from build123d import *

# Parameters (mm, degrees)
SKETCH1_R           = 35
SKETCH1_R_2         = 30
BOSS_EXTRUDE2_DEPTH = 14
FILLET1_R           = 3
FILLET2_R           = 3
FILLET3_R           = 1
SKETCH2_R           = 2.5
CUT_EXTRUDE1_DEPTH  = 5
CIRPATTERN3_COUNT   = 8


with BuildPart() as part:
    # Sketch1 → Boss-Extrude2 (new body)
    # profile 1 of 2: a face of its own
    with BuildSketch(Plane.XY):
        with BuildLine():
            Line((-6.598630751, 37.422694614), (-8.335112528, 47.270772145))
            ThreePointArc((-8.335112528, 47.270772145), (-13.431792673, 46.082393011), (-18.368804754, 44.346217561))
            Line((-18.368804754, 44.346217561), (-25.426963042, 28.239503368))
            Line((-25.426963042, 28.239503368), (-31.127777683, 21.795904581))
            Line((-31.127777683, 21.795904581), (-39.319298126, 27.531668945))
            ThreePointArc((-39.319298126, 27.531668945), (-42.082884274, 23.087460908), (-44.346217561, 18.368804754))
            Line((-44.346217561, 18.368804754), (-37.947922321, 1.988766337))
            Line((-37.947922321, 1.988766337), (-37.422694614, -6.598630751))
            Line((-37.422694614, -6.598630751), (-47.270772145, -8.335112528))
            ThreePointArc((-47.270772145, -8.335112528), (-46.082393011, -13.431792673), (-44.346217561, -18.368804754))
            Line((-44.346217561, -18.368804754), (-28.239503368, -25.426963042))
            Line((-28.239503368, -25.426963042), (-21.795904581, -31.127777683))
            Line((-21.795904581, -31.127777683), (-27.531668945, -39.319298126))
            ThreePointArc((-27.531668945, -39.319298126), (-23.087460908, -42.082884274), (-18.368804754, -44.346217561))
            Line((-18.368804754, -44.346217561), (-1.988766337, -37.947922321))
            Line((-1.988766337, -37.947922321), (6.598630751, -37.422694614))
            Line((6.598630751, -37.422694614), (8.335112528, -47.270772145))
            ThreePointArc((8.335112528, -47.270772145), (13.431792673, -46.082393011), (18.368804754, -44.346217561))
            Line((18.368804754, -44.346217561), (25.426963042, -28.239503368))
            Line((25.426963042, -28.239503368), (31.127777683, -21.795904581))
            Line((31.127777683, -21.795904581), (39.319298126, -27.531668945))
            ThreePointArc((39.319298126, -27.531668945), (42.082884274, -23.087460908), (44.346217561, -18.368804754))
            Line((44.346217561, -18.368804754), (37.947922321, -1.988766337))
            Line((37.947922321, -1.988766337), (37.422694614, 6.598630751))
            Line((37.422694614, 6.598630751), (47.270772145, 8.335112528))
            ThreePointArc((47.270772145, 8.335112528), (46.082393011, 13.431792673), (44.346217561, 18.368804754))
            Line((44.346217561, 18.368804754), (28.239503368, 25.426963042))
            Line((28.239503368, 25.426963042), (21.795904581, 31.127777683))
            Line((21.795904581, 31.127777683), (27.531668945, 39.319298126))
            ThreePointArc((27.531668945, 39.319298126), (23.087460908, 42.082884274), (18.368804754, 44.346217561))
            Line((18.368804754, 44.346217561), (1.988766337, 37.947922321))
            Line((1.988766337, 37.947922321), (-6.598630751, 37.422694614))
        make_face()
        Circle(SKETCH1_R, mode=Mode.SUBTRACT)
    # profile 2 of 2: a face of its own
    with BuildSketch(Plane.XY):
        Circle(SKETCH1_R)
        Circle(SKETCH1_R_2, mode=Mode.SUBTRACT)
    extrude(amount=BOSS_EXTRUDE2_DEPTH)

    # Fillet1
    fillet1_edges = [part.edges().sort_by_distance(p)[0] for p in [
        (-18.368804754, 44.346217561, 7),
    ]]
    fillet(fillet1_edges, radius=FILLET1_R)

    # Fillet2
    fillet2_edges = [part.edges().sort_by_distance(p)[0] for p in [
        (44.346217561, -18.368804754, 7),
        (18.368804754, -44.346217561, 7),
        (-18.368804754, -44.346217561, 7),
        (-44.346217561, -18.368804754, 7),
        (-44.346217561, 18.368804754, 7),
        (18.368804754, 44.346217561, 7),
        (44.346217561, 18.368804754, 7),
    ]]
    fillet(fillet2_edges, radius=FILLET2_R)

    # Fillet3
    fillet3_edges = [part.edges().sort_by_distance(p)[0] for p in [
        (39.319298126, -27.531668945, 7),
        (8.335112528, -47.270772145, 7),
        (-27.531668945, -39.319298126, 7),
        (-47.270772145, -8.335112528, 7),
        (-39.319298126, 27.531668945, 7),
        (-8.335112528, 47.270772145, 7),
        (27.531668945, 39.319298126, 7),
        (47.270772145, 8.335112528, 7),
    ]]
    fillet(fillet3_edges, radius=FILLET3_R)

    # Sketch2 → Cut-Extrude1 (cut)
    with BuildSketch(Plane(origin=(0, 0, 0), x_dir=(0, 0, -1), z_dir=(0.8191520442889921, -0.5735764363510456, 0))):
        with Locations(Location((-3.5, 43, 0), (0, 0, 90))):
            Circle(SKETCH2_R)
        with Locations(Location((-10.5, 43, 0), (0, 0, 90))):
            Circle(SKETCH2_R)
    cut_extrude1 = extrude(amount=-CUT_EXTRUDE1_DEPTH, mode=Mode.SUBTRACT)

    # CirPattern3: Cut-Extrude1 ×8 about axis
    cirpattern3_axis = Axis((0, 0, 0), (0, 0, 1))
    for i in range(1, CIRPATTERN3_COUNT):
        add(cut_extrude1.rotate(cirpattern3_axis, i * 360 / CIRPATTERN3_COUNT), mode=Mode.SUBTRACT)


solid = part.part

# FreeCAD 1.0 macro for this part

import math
import FreeCAD as App
import Part
import Sketcher

V = App.Vector
Q = App.Units.Quantity


def edges_at(feature, points):
    """Names of the edges that pass closest to the given points."""
    edges = feature.Shape.Edges
    near = lambda p: min(range(len(edges)), key=lambda i: edges[i].distToShape(Part.Vertex(*p))[0])
    return sorted({f"Edge{near(p) + 1}" for p in points})

doc = App.newDocument("Part")
body = doc.addObject("PartDesign::Body", "Body")

sketch1 = body.newObject("Sketcher::SketchObject", "Sketch")
sketch1.AttachmentSupport = (doc.getObject("XY_Plane"), [""])
sketch1.MapMode = "FlatFace"
sketch1.addGeometry(Part.LineSegment(V(-6.598631, 37.422695, 0), V(-8.335113, 47.270772, 0)), False)
sketch1.addGeometry(Part.ArcOfCircle(Part.Circle(V(0, 0, 0), V(0, 0, 1), 48), math.radians(100), math.radians(112.5)), False)
sketch1.addGeometry(Part.LineSegment(V(-18.368805, 44.346218, 0), V(-25.426963, 28.239503, 0)), False)
sketch1.addGeometry(Part.LineSegment(V(-25.426963, 28.239503, 0), V(-31.127778, 21.795905, 0)), False)
sketch1.addGeometry(Part.LineSegment(V(-31.127778, 21.795905, 0), V(-39.319298, 27.531669, 0)), False)
sketch1.addGeometry(Part.ArcOfCircle(Part.Circle(V(0, 0, 0), V(0, 0, 1), 48), math.radians(145), math.radians(157.5)), False)
sketch1.addGeometry(Part.LineSegment(V(-44.346218, 18.368805, 0), V(-37.947922, 1.988766, 0)), False)
sketch1.addGeometry(Part.LineSegment(V(-37.947922, 1.988766, 0), V(-37.422695, -6.598631, 0)), False)
sketch1.addGeometry(Part.LineSegment(V(-37.422695, -6.598631, 0), V(-47.270772, -8.335113, 0)), False)
sketch1.addGeometry(Part.ArcOfCircle(Part.Circle(V(0, 0, 0), V(0, 0, 1), 48), math.radians(-170), math.radians(-157.5)), False)
sketch1.addGeometry(Part.LineSegment(V(-44.346218, -18.368805, 0), V(-28.239503, -25.426963, 0)), False)
sketch1.addGeometry(Part.LineSegment(V(-28.239503, -25.426963, 0), V(-21.795905, -31.127778, 0)), False)
sketch1.addGeometry(Part.LineSegment(V(-21.795905, -31.127778, 0), V(-27.531669, -39.319298, 0)), False)
sketch1.addGeometry(Part.ArcOfCircle(Part.Circle(V(0, 0, 0), V(0, 0, 1), 48), math.radians(-125), math.radians(-112.5)), False)
sketch1.addGeometry(Part.LineSegment(V(-18.368805, -44.346218, 0), V(-1.988766, -37.947922, 0)), False)
sketch1.addGeometry(Part.LineSegment(V(-1.988766, -37.947922, 0), V(6.598631, -37.422695, 0)), False)
sketch1.addGeometry(Part.LineSegment(V(6.598631, -37.422695, 0), V(8.335113, -47.270772, 0)), False)
sketch1.addGeometry(Part.ArcOfCircle(Part.Circle(V(0, 0, 0), V(0, 0, 1), 48), math.radians(-80), math.radians(-67.5)), False)
sketch1.addGeometry(Part.LineSegment(V(18.368805, -44.346218, 0), V(25.426963, -28.239503, 0)), False)
sketch1.addGeometry(Part.LineSegment(V(25.426963, -28.239503, 0), V(31.127778, -21.795905, 0)), False)
sketch1.addGeometry(Part.LineSegment(V(31.127778, -21.795905, 0), V(39.319298, -27.531669, 0)), False)
sketch1.addGeometry(Part.ArcOfCircle(Part.Circle(V(0, 0, 0), V(0, 0, 1), 48), math.radians(-35), math.radians(-22.5)), False)
sketch1.addGeometry(Part.LineSegment(V(44.346218, -18.368805, 0), V(37.947922, -1.988766, 0)), False)
sketch1.addGeometry(Part.LineSegment(V(37.947922, -1.988766, 0), V(37.422695, 6.598631, 0)), False)
sketch1.addGeometry(Part.LineSegment(V(37.422695, 6.598631, 0), V(47.270772, 8.335113, 0)), False)
sketch1.addGeometry(Part.ArcOfCircle(Part.Circle(V(0, 0, 0), V(0, 0, 1), 48), math.radians(10), math.radians(22.5)), False)
sketch1.addGeometry(Part.LineSegment(V(44.346218, 18.368805, 0), V(28.239503, 25.426963, 0)), False)
sketch1.addGeometry(Part.LineSegment(V(28.239503, 25.426963, 0), V(21.795905, 31.127778, 0)), False)
sketch1.addGeometry(Part.LineSegment(V(21.795905, 31.127778, 0), V(27.531669, 39.319298, 0)), False)
sketch1.addGeometry(Part.ArcOfCircle(Part.Circle(V(0, 0, 0), V(0, 0, 1), 48), math.radians(55), math.radians(67.5)), False)
sketch1.addGeometry(Part.LineSegment(V(18.368805, 44.346218, 0), V(1.988766, 37.947922, 0)), False)
sketch1.addGeometry(Part.LineSegment(V(1.988766, 37.947922, 0), V(-6.598631, 37.422695, 0)), False)
sketch1.addGeometry(Part.Circle(V(0, 0, 0), V(0, 0, 1), 30), False)
sketch1.addConstraint(Sketcher.Constraint("Coincident", 0, 2, 1, 1))
sketch1.addConstraint(Sketcher.Constraint("Coincident", 1, 2, 2, 1))
sketch1.addConstraint(Sketcher.Constraint("Coincident", 2, 2, 3, 1))
sketch1.addConstraint(Sketcher.Constraint("Coincident", 3, 2, 4, 1))
sketch1.addConstraint(Sketcher.Constraint("Coincident", 4, 2, 5, 1))
sketch1.addConstraint(Sketcher.Constraint("Coincident", 5, 2, 6, 1))
sketch1.addConstraint(Sketcher.Constraint("Coincident", 6, 2, 7, 1))
sketch1.addConstraint(Sketcher.Constraint("Coincident", 7, 2, 8, 1))
sketch1.addConstraint(Sketcher.Constraint("Coincident", 8, 2, 9, 1))
sketch1.addConstraint(Sketcher.Constraint("Coincident", 9, 2, 10, 1))
sketch1.addConstraint(Sketcher.Constraint("Coincident", 10, 2, 11, 1))
sketch1.addConstraint(Sketcher.Constraint("Coincident", 11, 2, 12, 1))
sketch1.addConstraint(Sketcher.Constraint("Coincident", 12, 2, 13, 1))
sketch1.addConstraint(Sketcher.Constraint("Coincident", 13, 2, 14, 1))
sketch1.addConstraint(Sketcher.Constraint("Coincident", 14, 2, 15, 1))
sketch1.addConstraint(Sketcher.Constraint("Coincident", 15, 2, 16, 1))
sketch1.addConstraint(Sketcher.Constraint("Coincident", 16, 2, 17, 1))
sketch1.addConstraint(Sketcher.Constraint("Coincident", 17, 2, 18, 1))
sketch1.addConstraint(Sketcher.Constraint("Coincident", 18, 2, 19, 1))
sketch1.addConstraint(Sketcher.Constraint("Coincident", 19, 2, 20, 1))
sketch1.addConstraint(Sketcher.Constraint("Coincident", 20, 2, 21, 1))
sketch1.addConstraint(Sketcher.Constraint("Coincident", 21, 2, 22, 1))
sketch1.addConstraint(Sketcher.Constraint("Coincident", 22, 2, 23, 1))
sketch1.addConstraint(Sketcher.Constraint("Coincident", 23, 2, 24, 1))
sketch1.addConstraint(Sketcher.Constraint("Coincident", 24, 2, 25, 1))
sketch1.addConstraint(Sketcher.Constraint("Coincident", 25, 2, 26, 1))
sketch1.addConstraint(Sketcher.Constraint("Coincident", 26, 2, 27, 1))
sketch1.addConstraint(Sketcher.Constraint("Coincident", 27, 2, 28, 1))
sketch1.addConstraint(Sketcher.Constraint("Coincident", 28, 2, 29, 1))
sketch1.addConstraint(Sketcher.Constraint("Coincident", 29, 2, 30, 1))
sketch1.addConstraint(Sketcher.Constraint("Coincident", 30, 2, 31, 1))
sketch1.addConstraint(Sketcher.Constraint("Coincident", 31, 2, 0, 1))
sketch1.addConstraint(Sketcher.Constraint("Coincident", 1, 3, -1, 1))
sketch1.addConstraint(Sketcher.Constraint("Coincident", 5, 3, -1, 1))
sketch1.addConstraint(Sketcher.Constraint("Coincident", 9, 3, -1, 1))
sketch1.addConstraint(Sketcher.Constraint("Coincident", 13, 3, -1, 1))
sketch1.addConstraint(Sketcher.Constraint("Coincident", 17, 3, -1, 1))
sketch1.addConstraint(Sketcher.Constraint("Coincident", 21, 3, -1, 1))
sketch1.addConstraint(Sketcher.Constraint("Coincident", 25, 3, -1, 1))
sketch1.addConstraint(Sketcher.Constraint("Coincident", 29, 3, -1, 1))
sketch1.addConstraint(Sketcher.Constraint("Coincident", 32, 3, -1, 1))
sketch1.addConstraint(Sketcher.Constraint("Equal", 1, 5))
sketch1.addConstraint(Sketcher.Constraint("Equal", 5, 9))
sketch1.addConstraint(Sketcher.Constraint("Equal", 9, 13))
sketch1.addConstraint(Sketcher.Constraint("Equal", 13, 17))
sketch1.addConstraint(Sketcher.Constraint("Equal", 17, 21))
sketch1.addConstraint(Sketcher.Constraint("Equal", 21, 25))
sketch1.addConstraint(Sketcher.Constraint("Equal", 25, 29))
sketch1.addConstraint(Sketcher.Constraint("Symmetric", 2, 2, 18, 2, -1, 1))
sketch1.addConstraint(Sketcher.Constraint("Symmetric", 3, 2, 19, 2, -1, 1))
sketch1.addConstraint(Sketcher.Constraint("Symmetric", 6, 2, 22, 2, -1, 1))
sketch1.addConstraint(Sketcher.Constraint("Symmetric", 7, 2, 23, 2, -1, 1))
sketch1.addConstraint(Sketcher.Constraint("Symmetric", 10, 2, 26, 2, -1, 1))
sketch1.addConstraint(Sketcher.Constraint("Symmetric", 11, 2, 27, 2, -1, 1))
sketch1.addConstraint(Sketcher.Constraint("Symmetric", 14, 2, 30, 2, -1, 1))
sketch1.addConstraint(Sketcher.Constraint("Symmetric", 15, 2, 31, 2, -1, 1))
sketch1.addConstraint(Sketcher.Constraint("Perpendicular", 0, 8))
sketch1.addConstraint(Sketcher.Constraint("Perpendicular", 2, 10))
sketch1.addConstraint(Sketcher.Constraint("Perpendicular", 3, 11))
sketch1.addConstraint(Sketcher.Constraint("Perpendicular", 4, 12))
sketch1.addConstraint(Sketcher.Constraint("Perpendicular", 6, 14))
sketch1.addConstraint(Sketcher.Constraint("Perpendicular", 7, 15))
sketch1.addConstraint(Sketcher.Constraint("Perpendicular", 8, 16))
sketch1.addConstraint(Sketcher.Constraint("Perpendicular", 10, 18))
sketch1.addConstraint(Sketcher.Constraint("Perpendicular", 12, 20))
sketch1.addConstraint(Sketcher.Constraint("Perpendicular", 14, 22))
sketch1.addConstraint(Sketcher.Constraint("Perpendicular", 16, 24))
sketch1.addConstraint(Sketcher.Constraint("Perpendicular", 18, 26))
sketch1.addConstraint(Sketcher.Constraint("Perpendicular", 20, 28))
sketch1.addConstraint(Sketcher.Constraint("Perpendicular", 22, 30))
sketch1.addConstraint(Sketcher.Constraint("Horizontal", 13, 2, 17, 2))
sketch1.addConstraint(Sketcher.Constraint("Horizontal", 9, 2, 21, 2))
sketch1.addConstraint(Sketcher.Constraint("Equal", 0, 4))
sketch1.addConstraint(Sketcher.Constraint("Equal", 2, 6))
sketch1.addConstraint(Sketcher.Constraint("Equal", 3, 7))
sketch1.addConstraint(Sketcher.Constraint("Equal", 4, 8))
sketch1.addConstraint(Sketcher.Constraint("Equal", 6, 10))
sketch1.addConstraint(Sketcher.Constraint("Equal", 7, 11))
sketch1.addConstraint(Sketcher.Constraint("Equal", 8, 12))
sketch1.addConstraint(Sketcher.Constraint("Equal", 10, 14))
sketch1.addConstraint(Sketcher.Constraint("Diameter", 32, Q("60 mm")))
sketch1.addConstraint(Sketcher.Constraint("Radius", 1, Q("48 mm")))
sketch1.addConstraint(Sketcher.Constraint("Angle", 0, Q("100 deg")))
sketch1.addConstraint(Sketcher.Constraint("Angle", 4, Q("145 deg")))
sketch1.addConstraint(Sketcher.Constraint("Distance", 0, Q("10 mm")))
sketch1.addConstraint(Sketcher.Constraint("Angle", 3, Q("-131.5 deg")))
sketch1.addConstraint(Sketcher.Constraint("Angle", 7, Q("-86.5 deg")))
sketch1.addConstraint(Sketcher.Constraint("DistanceX", 4, 2, -1, 1, Q("39.319298 mm")))
sketch1.addConstraint(Sketcher.Constraint("DistanceY", 3, 2, 2, 2, Q("6.443599 mm")))
sketch1.addConstraint(Sketcher.Constraint("DistanceY", 5, 2, 3, 2, Q("3.4271 mm")))
pad1 = body.newObject("PartDesign::Pad", "Pad")
pad1.Profile = sketch1
pad1.Length = 14
doc.recompute()

fillet = body.newObject("PartDesign::Fillet", "Fillet")
fillet.Base = (pad1, edges_at(pad1, [(-18.369, 44.346, 7)]))
fillet.Radius = 3
doc.recompute()

fillet2 = body.newObject("PartDesign::Fillet", "Fillet001")
fillet2.Base = (fillet, edges_at(fillet, [
    (44.346, -18.369, 7),
    (18.369, -44.346, 7),
    (-18.369, -44.346, 7),
    (-44.346, -18.369, 7),
    (-44.346, 18.369, 7),
    (18.369, 44.346, 7),
    (44.346, 18.369, 7),
]))
fillet2.Radius = 3
doc.recompute()

fillet3 = body.newObject("PartDesign::Fillet", "Fillet002")
fillet3.Base = (fillet2, edges_at(fillet2, [
    (39.319, -27.532, 7),
    (8.335, -47.271, 7),
    (-27.532, -39.319, 7),
    (-47.271, -8.335, 7),
    (-39.319, 27.532, 7),
    (-8.335, 47.271, 7),
    (27.532, 39.319, 7),
    (47.271, 8.335, 7),
]))
fillet3.Radius = 1

sketch2 = body.newObject("Sketcher::SketchObject", "Sketch001")
sketch2.Placement = App.Placement(V(0, 0, 0), App.Rotation(V(0, 0, -1), V(0.573576436, 0.819152044, 0), V(0.819152044, -0.573576436, 0), "ZXY"))
sketch2.addGeometry(Part.Circle(V(-3.5, 43, 0), V(0, 0, 1), 2.5), False)
sketch2.addGeometry(Part.Circle(V(-10.5, 43, 0), V(0, 0, 1), 2.5), False)
sketch2.addConstraint(Sketcher.Constraint("Equal", 0, 1))
sketch2.addConstraint(Sketcher.Constraint("Horizontal", 0, 3, 1, 3))
sketch2.addConstraint(Sketcher.Constraint("Diameter", 0, Q("5 mm")))
sketch2.addConstraint(Sketcher.Constraint("DistanceY", -1, 1, 0, 3, Q("43 mm")))
sketch2.addConstraint(Sketcher.Constraint("DistanceX", 1, 3, 0, 3, Q("7 mm")))
sketch2.addConstraint(Sketcher.Constraint("DistanceX", 0, 3, -1, 1, Q("3.5 mm")))
pocket1 = body.newObject("PartDesign::Pocket", "Pocket")
pocket1.Profile = sketch2
pocket1.Length = 5
doc.recompute()

polarpattern = body.newObject("PartDesign::PolarPattern", "PolarPattern")
polarpattern.Originals = [pocket1]
polarpattern.Axis = (doc.getObject("Z_Axis"), [""])
polarpattern.Angle = 360
polarpattern.Occurrences = 8
body.Tip = polarpattern

doc.recompute()
